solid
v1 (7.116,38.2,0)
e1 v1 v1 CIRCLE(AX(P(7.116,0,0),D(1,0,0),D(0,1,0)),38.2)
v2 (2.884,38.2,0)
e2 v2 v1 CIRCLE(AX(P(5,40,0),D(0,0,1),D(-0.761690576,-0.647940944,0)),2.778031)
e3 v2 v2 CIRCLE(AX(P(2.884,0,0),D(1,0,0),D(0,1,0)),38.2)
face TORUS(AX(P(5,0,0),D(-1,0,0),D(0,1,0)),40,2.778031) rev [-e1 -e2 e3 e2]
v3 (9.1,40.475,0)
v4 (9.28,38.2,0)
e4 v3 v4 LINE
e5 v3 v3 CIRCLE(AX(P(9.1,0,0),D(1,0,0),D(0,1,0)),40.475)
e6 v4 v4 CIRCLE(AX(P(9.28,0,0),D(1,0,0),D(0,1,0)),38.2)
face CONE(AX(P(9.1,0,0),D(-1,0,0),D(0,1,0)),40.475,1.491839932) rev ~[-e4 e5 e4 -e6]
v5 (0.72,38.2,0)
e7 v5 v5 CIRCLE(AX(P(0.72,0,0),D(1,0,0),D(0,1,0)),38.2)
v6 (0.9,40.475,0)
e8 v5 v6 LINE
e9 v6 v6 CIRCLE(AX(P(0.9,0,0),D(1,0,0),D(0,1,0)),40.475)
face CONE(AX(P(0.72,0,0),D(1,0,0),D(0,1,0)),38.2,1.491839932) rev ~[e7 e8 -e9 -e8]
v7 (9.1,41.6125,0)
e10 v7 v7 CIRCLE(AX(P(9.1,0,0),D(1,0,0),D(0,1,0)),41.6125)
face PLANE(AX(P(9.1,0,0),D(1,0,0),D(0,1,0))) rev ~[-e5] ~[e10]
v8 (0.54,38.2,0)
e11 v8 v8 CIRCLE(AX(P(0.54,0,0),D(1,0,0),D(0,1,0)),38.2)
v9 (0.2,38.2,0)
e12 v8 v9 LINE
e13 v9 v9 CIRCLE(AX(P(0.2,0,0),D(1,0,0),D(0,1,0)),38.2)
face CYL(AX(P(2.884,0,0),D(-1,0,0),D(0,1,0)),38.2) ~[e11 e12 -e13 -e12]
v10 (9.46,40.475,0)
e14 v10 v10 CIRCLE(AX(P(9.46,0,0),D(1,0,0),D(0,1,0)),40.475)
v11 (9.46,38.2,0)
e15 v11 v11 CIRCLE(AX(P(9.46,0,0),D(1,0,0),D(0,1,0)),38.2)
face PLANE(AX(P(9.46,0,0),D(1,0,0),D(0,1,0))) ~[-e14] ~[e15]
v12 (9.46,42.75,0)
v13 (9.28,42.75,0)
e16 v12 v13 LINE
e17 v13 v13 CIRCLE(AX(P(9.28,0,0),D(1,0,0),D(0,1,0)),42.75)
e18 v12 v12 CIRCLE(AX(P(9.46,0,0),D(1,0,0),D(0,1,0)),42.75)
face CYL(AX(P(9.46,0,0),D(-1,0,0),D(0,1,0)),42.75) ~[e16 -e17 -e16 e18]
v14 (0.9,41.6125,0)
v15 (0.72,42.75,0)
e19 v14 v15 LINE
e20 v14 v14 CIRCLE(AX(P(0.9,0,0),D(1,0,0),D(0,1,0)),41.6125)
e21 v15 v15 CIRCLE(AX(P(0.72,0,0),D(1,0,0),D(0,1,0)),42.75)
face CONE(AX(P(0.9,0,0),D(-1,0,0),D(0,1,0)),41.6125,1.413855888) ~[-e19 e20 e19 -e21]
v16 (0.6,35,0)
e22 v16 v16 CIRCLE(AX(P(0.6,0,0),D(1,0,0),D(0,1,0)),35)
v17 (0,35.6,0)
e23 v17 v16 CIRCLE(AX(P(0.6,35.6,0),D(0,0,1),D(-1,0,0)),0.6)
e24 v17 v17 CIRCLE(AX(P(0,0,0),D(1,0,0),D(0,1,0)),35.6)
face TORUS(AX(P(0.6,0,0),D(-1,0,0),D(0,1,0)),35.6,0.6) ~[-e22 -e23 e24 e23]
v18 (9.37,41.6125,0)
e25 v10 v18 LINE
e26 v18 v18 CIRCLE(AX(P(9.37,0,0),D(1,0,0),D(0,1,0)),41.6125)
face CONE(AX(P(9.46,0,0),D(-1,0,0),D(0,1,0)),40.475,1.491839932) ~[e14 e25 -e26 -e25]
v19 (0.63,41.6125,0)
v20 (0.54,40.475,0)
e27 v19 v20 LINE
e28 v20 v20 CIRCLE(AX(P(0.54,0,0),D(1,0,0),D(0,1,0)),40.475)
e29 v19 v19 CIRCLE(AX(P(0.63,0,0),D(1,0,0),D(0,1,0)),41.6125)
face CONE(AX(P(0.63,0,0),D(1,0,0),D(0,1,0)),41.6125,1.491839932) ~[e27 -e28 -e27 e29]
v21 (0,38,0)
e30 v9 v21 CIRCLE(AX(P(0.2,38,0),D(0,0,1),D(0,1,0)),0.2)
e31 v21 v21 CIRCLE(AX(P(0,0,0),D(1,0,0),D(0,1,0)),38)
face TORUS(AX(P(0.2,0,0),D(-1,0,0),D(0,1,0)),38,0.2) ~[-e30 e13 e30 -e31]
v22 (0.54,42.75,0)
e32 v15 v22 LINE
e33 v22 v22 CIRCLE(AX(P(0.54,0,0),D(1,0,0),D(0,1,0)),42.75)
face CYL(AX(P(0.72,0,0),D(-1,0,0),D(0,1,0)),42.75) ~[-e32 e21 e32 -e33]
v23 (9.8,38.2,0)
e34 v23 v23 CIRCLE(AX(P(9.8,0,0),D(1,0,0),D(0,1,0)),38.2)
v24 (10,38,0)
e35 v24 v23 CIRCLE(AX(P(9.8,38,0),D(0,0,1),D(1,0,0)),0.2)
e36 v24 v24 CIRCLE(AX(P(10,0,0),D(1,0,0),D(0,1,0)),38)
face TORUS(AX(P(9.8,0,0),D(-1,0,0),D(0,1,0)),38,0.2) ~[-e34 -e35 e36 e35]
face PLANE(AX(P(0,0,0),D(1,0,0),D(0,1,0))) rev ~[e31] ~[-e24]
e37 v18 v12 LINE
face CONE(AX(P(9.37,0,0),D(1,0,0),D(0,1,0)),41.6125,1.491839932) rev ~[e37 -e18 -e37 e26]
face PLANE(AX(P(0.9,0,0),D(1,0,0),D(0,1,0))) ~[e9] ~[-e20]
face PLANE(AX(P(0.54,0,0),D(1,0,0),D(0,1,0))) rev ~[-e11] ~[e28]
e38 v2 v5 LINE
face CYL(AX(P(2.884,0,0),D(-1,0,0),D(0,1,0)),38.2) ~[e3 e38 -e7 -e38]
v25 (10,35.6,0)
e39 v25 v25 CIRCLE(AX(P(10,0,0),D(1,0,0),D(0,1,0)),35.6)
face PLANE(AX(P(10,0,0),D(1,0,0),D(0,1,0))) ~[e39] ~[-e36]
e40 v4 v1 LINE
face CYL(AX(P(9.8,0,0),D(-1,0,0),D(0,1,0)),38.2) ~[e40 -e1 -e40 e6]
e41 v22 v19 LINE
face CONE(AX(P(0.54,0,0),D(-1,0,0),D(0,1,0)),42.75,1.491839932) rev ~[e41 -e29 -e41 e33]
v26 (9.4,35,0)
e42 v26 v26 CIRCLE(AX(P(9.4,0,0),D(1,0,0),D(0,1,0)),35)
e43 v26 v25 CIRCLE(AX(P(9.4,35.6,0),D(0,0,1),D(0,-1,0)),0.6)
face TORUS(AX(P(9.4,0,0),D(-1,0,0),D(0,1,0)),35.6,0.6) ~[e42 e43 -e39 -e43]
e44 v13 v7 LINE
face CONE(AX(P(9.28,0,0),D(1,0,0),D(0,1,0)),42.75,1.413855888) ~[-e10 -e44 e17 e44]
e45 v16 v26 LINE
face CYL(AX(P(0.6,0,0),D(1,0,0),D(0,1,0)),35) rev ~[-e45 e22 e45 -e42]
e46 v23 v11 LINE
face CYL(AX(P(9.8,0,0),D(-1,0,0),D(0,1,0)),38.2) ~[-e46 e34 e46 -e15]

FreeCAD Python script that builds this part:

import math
import FreeCAD as App
import Part
import Sketcher

V = App.Vector

doc = App.newDocument("Part")
body = doc.addObject("PartDesign::Body", "Body")

sketch1 = doc.addObject("Sketcher::SketchObject", "Sketch")
body.addObject(sketch1)
sketch1.AttachmentSupport = (doc.XY_Plane, [""])
sketch1.MapMode = "FlatFace"
sketch1.addGeometry(Part.ArcOfCircle(Part.Circle(V(0.2, 38, 0), V(0, 0, 1), 0.2), math.radians(90), math.radians(180)), False)
sketch1.addGeometry(Part.LineSegment(V(0, 38, 0), V(0, 35.6, 0)), False)
sketch1.addGeometry(Part.ArcOfCircle(Part.Circle(V(0.6, 35.6, 0), V(0, 0, 1), 0.6), math.radians(180), math.radians(270)), False)
sketch1.addGeometry(Part.LineSegment(V(0.6, 35, 0), V(9.4, 35, 0)), False)
sketch1.addGeometry(Part.ArcOfCircle(Part.Circle(V(9.4, 35.6, 0), V(0, 0, 1), 0.6), math.radians(-90), math.radians(0)), False)
sketch1.addGeometry(Part.LineSegment(V(10, 35.6, 0), V(10, 38, 0)), False)
sketch1.addGeometry(Part.ArcOfCircle(Part.Circle(V(9.8, 38, 0), V(0, 0, 1), 0.2), math.radians(0), math.radians(90)), False)
sketch1.addGeometry(Part.LineSegment(V(9.8, 38.2, 0), V(7.12, 38.2, 0)), False)
sketch1.addGeometry(Part.ArcOfCircle(Part.Circle(V(5, 40, 0), V(0, 0, 1), 2.78), math.radians(-140), math.radians(-40)), False)
sketch1.addGeometry(Part.LineSegment(V(2.88, 38.2, 0), V(0.2, 38.2, 0)), False)
sketch1.addConstraint(Sketcher.Constraint("Tangent", 0, 2, 1, 1))
sketch1.addConstraint(Sketcher.Constraint("Tangent", 1, 2, 2, 1))
sketch1.addConstraint(Sketcher.Constraint("Tangent", 2, 2, 3, 1))
sketch1.addConstraint(Sketcher.Constraint("Tangent", 3, 2, 4, 1))
sketch1.addConstraint(Sketcher.Constraint("Tangent", 4, 2, 5, 1))
sketch1.addConstraint(Sketcher.Constraint("Tangent", 5, 2, 6, 1))
sketch1.addConstraint(Sketcher.Constraint("Tangent", 6, 2, 7, 1))
sketch1.addConstraint(Sketcher.Constraint("Coincident", 7, 2, 8, 2))
sketch1.addConstraint(Sketcher.Constraint("Coincident", 8, 1, 9, 1))
sketch1.addConstraint(Sketcher.Constraint("Tangent", 9, 2, 0, 1))
sketch1.addConstraint(Sketcher.Constraint("Vertical", 1))
sketch1.addConstraint(Sketcher.Constraint("Horizontal", 3))
sketch1.addConstraint(Sketcher.Constraint("Vertical", 5))
sketch1.addConstraint(Sketcher.Constraint("Horizontal", 7))
sketch1.addConstraint(Sketcher.Constraint("Horizontal", 9))
sketch1.addConstraint(Sketcher.Constraint("Equal", 2, 4))
sketch1.addConstraint(Sketcher.Constraint("Equal", 0, 6))
sketch1.addConstraint(Sketcher.Constraint("PointOnObject", 0, 2, -2))
sketch1.addConstraint(Sketcher.Constraint("Horizontal", 0, 3, 6, 3))
sketch1.addConstraint(Sketcher.Constraint("Equal", 7, 9))
sketch1.addConstraint(Sketcher.Constraint("Radius", 0, 0.2))
sketch1.addConstraint(Sketcher.Constraint("Radius", 2, 0.6))
sketch1.addConstraint(Sketcher.Constraint("DistanceX", 3, 1, 3, 2, 8.8))
sketch1.addConstraint(Sketcher.Constraint("DistanceY", 1, 2, 1, 1, 2.4))
sketch1.addConstraint(Sketcher.Constraint("DistanceY", -1, 1, 0, 3, 38.0))
sketch1.addConstraint(Sketcher.Constraint("DistanceY", -1, 1, 8, 3, 40.0))
sketch1.addConstraint(Sketcher.Constraint("Radius", 8, 2.778))
revolution = doc.addObject("PartDesign::Revolution", "Revolution")
body.addObject(revolution)
revolution.Profile = sketch1
revolution.ReferenceAxis = (sketch1, ["H_Axis"])
revolution.Angle = 360

sketch2 = doc.addObject("Sketcher::SketchObject", "Sketch001")
body.addObject(sketch2)
sketch2.AttachmentSupport = (doc.XY_Plane, [""])
sketch2.MapMode = "FlatFace"
sketch2.addGeometry(Part.LineSegment(V(0.72, 42.75, 0), V(0.54, 42.75, 0)), False)
sketch2.addGeometry(Part.LineSegment(V(0.54, 42.75, 0), V(0.63, 41.61, 0)), False)
sketch2.addGeometry(Part.LineSegment(V(0.63, 41.61, 0), V(0.54, 40.48, 0)), False)
sketch2.addGeometry(Part.LineSegment(V(0.54, 40.48, 0), V(0.54, 38.2, 0)), False)
sketch2.addGeometry(Part.LineSegment(V(0.54, 38.2, 0), V(0.72, 38.2, 0)), False)
sketch2.addGeometry(Part.LineSegment(V(0.72, 38.2, 0), V(0.9, 40.48, 0)), False)
sketch2.addGeometry(Part.LineSegment(V(0.9, 40.48, 0), V(0.9, 41.61, 0)), False)
sketch2.addGeometry(Part.LineSegment(V(0.9, 41.61, 0), V(0.72, 42.75, 0)), False)
sketch2.addConstraint(Sketcher.Constraint("Coincident", 0, 2, 1, 1))
sketch2.addConstraint(Sketcher.Constraint("Coincident", 1, 2, 2, 1))
sketch2.addConstraint(Sketcher.Constraint("Coincident", 2, 2, 3, 1))
sketch2.addConstraint(Sketcher.Constraint("Coincident", 3, 2, 4, 1))
sketch2.addConstraint(Sketcher.Constraint("Coincident", 4, 2, 5, 1))
sketch2.addConstraint(Sketcher.Constraint("Coincident", 5, 2, 6, 1))
sketch2.addConstraint(Sketcher.Constraint("Coincident", 6, 2, 7, 1))
sketch2.addConstraint(Sketcher.Constraint("Coincident", 7, 2, 0, 1))
sketch2.addConstraint(Sketcher.Constraint("Horizontal", 0))
sketch2.addConstraint(Sketcher.Constraint("Vertical", 3))
sketch2.addConstraint(Sketcher.Constraint("Horizontal", 4))
sketch2.addConstraint(Sketcher.Constraint("Vertical", 6))
sketch2.addConstraint(Sketcher.Constraint("Parallel", 2, 5))
sketch2.addConstraint(Sketcher.Constraint("Horizontal", 2, 2, 5, 2))
sketch2.addConstraint(Sketcher.Constraint("Horizontal", 1, 2, 6, 2))
sketch2.addConstraint(Sketcher.Constraint("Vertical", 0, 2, 2, 2))
sketch2.addConstraint(Sketcher.Constraint("Vertical", 4, 2, 7, 2))
sketch2.addConstraint(Sketcher.Constraint("Equal", 1, 2))
sketch2.addConstraint(Sketcher.Constraint("DistanceX", 0, 2, 0, 1, 0.18))
sketch2.addConstraint(Sketcher.Constraint("DistanceY", -1, 1, 3, 2, 38.2))
sketch2.addConstraint(Sketcher.Constraint("DistanceX", -1, 1, 5, 2, 0.9))
sketch2.addConstraint(Sketcher.Constraint("DistanceY", 3, 2, 3, 1, 2.275))
sketch2.addConstraint(Sketcher.Constraint("DistanceX", -1, 1, 0, 2, 0.54))
sketch2.addConstraint(Sketcher.Constraint("DistanceY", -1, 1, 0, 2, 42.75))
revolution2 = doc.addObject("PartDesign::Revolution", "Revolution001")
body.addObject(revolution2)
revolution2.Profile = sketch2
revolution2.ReferenceAxis = (sketch2, ["H_Axis"])
revolution2.Angle = 360

sketch3 = doc.addObject("Sketcher::SketchObject", "Sketch002")
body.addObject(sketch3)
sketch3.AttachmentSupport = (doc.XY_Plane, [""])
sketch3.MapMode = "FlatFace"
sketch3.addGeometry(Part.LineSegment(V(9.1, 41.61, 0), V(9.1, 40.48, 0)), False)
sketch3.addGeometry(Part.LineSegment(V(9.1, 40.48, 0), V(9.28, 38.2, 0)), False)
sketch3.addGeometry(Part.LineSegment(V(9.28, 38.2, 0), V(9.46, 38.2, 0)), False)
sketch3.addGeometry(Part.LineSegment(V(9.46, 38.2, 0), V(9.46, 40.48, 0)), False)
sketch3.addGeometry(Part.LineSegment(V(9.46, 40.48, 0), V(9.37, 41.61, 0)), False)
sketch3.addGeometry(Part.LineSegment(V(9.37, 41.61, 0), V(9.46, 42.75, 0)), False)
sketch3.addGeometry(Part.LineSegment(V(9.46, 42.75, 0), V(9.28, 42.75, 0)), False)
sketch3.addGeometry(Part.LineSegment(V(9.28, 42.75, 0), V(9.1, 41.61, 0)), False)
sketch3.addConstraint(Sketcher.Constraint("Coincident", 0, 2, 1, 1))
sketch3.addConstraint(Sketcher.Constraint("Coincident", 1, 2, 2, 1))
sketch3.addConstraint(Sketcher.Constraint("Coincident", 2, 2, 3, 1))
sketch3.addConstraint(Sketcher.Constraint("Coincident", 3, 2, 4, 1))
sketch3.addConstraint(Sketcher.Constraint("Coincident", 4, 2, 5, 1))
sketch3.addConstraint(Sketcher.Constraint("Coincident", 5, 2, 6, 1))
sketch3.addConstraint(Sketcher.Constraint("Coincident", 6, 2, 7, 1))
sketch3.addConstraint(Sketcher.Constraint("Coincident", 7, 2, 0, 1))
sketch3.addConstraint(Sketcher.Constraint("Vertical", 0))
sketch3.addConstraint(Sketcher.Constraint("Horizontal", 2))
sketch3.addConstraint(Sketcher.Constraint("Vertical", 3))
sketch3.addConstraint(Sketcher.Constraint("Horizontal", 6))
sketch3.addConstraint(Sketcher.Constraint("Parallel", 1, 4))
sketch3.addConstraint(Sketcher.Constraint("Horizontal", 0, 2, 3, 2))
sketch3.addConstraint(Sketcher.Constraint("Horizontal", 4, 2, 7, 2))
sketch3.addConstraint(Sketcher.Constraint("Vertical", 3, 2, 5, 2))
sketch3.addConstraint(Sketcher.Constraint("Vertical", 1, 2, 6, 2))
sketch3.addConstraint(Sketcher.Constraint("Equal", 4, 5))
sketch3.addConstraint(Sketcher.Constraint("DistanceX", 2, 1, 2, 2, 0.18))
sketch3.addConstraint(Sketcher.Constraint("DistanceX", -1, 1, 0, 2, 9.1))
sketch3.addConstraint(Sketcher.Constraint("DistanceY", -1, 1, 1, 2, 38.2))
sketch3.addConstraint(Sketcher.Constraint("DistanceY", 3, 1, 3, 2, 2.275))
sketch3.addConstraint(Sketcher.Constraint("DistanceX", -1, 1, 1, 2, 9.28))
sketch3.addConstraint(Sketcher.Constraint("DistanceX", -1, 1, 4, 2, 9.37))
revolution3 = doc.addObject("PartDesign::Revolution", "Revolution002")
body.addObject(revolution3)
revolution3.Profile = sketch3
revolution3.ReferenceAxis = (sketch3, ["H_Axis"])
revolution3.Angle = 360

doc.recompute()
